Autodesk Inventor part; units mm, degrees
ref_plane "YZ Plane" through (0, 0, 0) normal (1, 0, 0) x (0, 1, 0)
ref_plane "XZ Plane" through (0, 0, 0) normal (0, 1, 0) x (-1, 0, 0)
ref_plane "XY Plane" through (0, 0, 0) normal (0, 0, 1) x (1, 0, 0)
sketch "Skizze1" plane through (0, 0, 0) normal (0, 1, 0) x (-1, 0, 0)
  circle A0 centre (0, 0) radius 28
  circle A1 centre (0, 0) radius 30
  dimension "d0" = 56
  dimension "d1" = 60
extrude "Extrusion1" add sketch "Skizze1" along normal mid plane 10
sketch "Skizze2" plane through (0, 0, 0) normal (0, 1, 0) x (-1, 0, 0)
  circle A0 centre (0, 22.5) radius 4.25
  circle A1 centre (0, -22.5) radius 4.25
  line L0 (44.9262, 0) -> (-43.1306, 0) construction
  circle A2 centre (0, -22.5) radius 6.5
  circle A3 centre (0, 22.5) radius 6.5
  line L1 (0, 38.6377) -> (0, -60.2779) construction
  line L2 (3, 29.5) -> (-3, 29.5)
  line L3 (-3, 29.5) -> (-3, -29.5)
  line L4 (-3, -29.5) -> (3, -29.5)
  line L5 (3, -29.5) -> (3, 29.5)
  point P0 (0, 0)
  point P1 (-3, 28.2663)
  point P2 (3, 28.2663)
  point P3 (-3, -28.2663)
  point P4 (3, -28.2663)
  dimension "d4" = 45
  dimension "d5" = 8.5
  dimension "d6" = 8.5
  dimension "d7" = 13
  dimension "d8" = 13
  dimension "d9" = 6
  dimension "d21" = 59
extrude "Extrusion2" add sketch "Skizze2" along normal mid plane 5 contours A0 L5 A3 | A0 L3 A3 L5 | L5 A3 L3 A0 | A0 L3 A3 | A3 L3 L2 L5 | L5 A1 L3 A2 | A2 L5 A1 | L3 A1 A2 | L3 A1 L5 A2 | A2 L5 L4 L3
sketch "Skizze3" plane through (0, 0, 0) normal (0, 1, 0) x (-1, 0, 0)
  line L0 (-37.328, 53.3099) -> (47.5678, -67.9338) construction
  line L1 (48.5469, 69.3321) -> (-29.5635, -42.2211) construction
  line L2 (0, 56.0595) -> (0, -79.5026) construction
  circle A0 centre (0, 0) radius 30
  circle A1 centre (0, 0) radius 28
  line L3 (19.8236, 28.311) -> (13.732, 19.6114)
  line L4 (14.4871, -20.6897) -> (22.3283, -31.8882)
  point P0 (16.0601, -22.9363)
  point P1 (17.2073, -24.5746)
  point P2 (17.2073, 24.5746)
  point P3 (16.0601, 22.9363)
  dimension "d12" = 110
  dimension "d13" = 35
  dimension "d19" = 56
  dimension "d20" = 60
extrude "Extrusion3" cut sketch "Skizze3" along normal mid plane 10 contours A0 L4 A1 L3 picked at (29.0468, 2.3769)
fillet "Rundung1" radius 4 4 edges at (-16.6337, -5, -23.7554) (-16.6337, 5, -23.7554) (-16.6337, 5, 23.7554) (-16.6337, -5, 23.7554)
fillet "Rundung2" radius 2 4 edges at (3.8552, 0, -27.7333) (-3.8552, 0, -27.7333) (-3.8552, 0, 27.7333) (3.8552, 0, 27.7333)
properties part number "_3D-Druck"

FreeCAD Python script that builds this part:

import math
import FreeCAD as App
import Part
import Sketcher
Q = App.Units.Quantity


def edges_at(feature, points):
    """Names of the edges that pass closest to the given points."""
    edges = feature.Shape.Edges
    near = lambda p: min(range(len(edges)), key=lambda i: edges[i].distToShape(Part.Vertex(*p))[0])
    return sorted({f"Edge{near(p) + 1}" for p in points})

doc = App.newDocument("Part")
body = doc.addObject("PartDesign::Body", "Body")

# Sketch on XZ plane
sketch1 = doc.addObject("Sketcher::SketchObject", "Sketch")
body.addObject(sketch1)
sketch1.AttachmentSupport = (doc.XZ_Plane, [""])
sketch1.MapMode = "FlatFace"
sketch1.addGeometry([
    Part.Circle(App.Vector(0, 0, 0), App.Vector(0, 0, 1), 30),
    Part.Circle(App.Vector(0, 0, 0), App.Vector(0, 0, 1), 28),
], False)
sketch1.addConstraint([
    Sketcher.Constraint("Coincident", 0, 3, -1, 1),
    Sketcher.Constraint("Coincident", 1, 3, -1, 1),
    Sketcher.Constraint("Diameter", 0, 60.0),
    Sketcher.Constraint("Diameter", 1, 56.0),
])
pad1 = doc.addObject("PartDesign::Pad", "Pad")
body.addObject(pad1)
pad1.Profile = sketch1
pad1.Length = 10
pad1.Midplane = True

# Sketch on XZ plane
sketch2 = doc.addObject("Sketcher::SketchObject", "Sketch001")
body.addObject(sketch2)
sketch2.AttachmentSupport = (doc.XZ_Plane, [""])
sketch2.MapMode = "FlatFace"
sketch2.addGeometry([
    Part.LineSegment(App.Vector(-3, 28.3, 0), App.Vector(-3, 29.5, 0)),  # 0
    Part.LineSegment(App.Vector(-3, 29.5, 0), App.Vector(3, 29.5, 0)),  # 1
    Part.LineSegment(App.Vector(3, 29.5, 0), App.Vector(3, 28.3, 0)),  # 2
    Part.ArcOfCircle(Part.Circle(App.Vector(0, 22.5, 0), App.Vector(0, 0, 1), 6.5), math.radians(117), math.radians(423)),  # 3
    Part.Circle(App.Vector(0, 22.5, 0), App.Vector(0, 0, 1), 4.2),  # 4
    Part.LineSegment(App.Vector(3, -28.3, 0), App.Vector(3, -29.5, 0)),  # 5
    Part.LineSegment(App.Vector(3, -29.5, 0), App.Vector(-3, -29.5, 0)),  # 6
    Part.LineSegment(App.Vector(-3, -29.5, 0), App.Vector(-3, -28.3, 0)),  # 7
    Part.ArcOfCircle(Part.Circle(App.Vector(0, -22.5, 0), App.Vector(0, 0, 1), 6.5), math.radians(-63), math.radians(243)),  # 8
    Part.Circle(App.Vector(0, -22.5, 0), App.Vector(0, 0, 1), 4.2),  # 9
], False)
sketch2.addConstraint([
    Sketcher.Constraint("Coincident", 0, 2, 1, 1),
    Sketcher.Constraint("Coincident", 1, 2, 2, 1),
    Sketcher.Constraint("Coincident", 2, 2, 3, 2),
    Sketcher.Constraint("Coincident", 3, 1, 0, 1),
    Sketcher.Constraint("Coincident", 5, 2, 6, 1),
    Sketcher.Constraint("Coincident", 6, 2, 7, 1),
    Sketcher.Constraint("Coincident", 7, 2, 8, 2),
    Sketcher.Constraint("Coincident", 8, 1, 5, 1),
    Sketcher.Constraint("Vertical", 0),
    Sketcher.Constraint("Horizontal", 1),
    Sketcher.Constraint("Vertical", 2),
    Sketcher.Constraint("Vertical", 5),
    Sketcher.Constraint("Horizontal", 6),
    Sketcher.Constraint("Vertical", 7),
    Sketcher.Constraint("Coincident", 4, 3, 3, 3),
    Sketcher.Constraint("Coincident", 9, 3, 8, 3),
    Sketcher.Constraint("Equal", 3, 8),
    Sketcher.Constraint("Equal", 4, 9),
    Sketcher.Constraint("Symmetric", 3, 3, 8, 3, -1, 1),
    Sketcher.Constraint("Symmetric", 0, 2, 5, 2, -1, 1),
    Sketcher.Constraint("Symmetric", 2, 2, 3, 1, -2),
    Sketcher.Constraint("Horizontal", 7, 2, 8, 1),
    Sketcher.Constraint("Diameter", 4, 8.5),
    Sketcher.Constraint("Radius", 3, 6.5),
    Sketcher.Constraint("DistanceX", 1, 1, 1, 2, 6.0),
    Sketcher.Constraint("DistanceY", 8, 3, 3, 3, 45.0),
    Sketcher.Constraint("DistanceY", 3, 3, 0, 2, 7.0),
])
pad2 = doc.addObject("PartDesign::Pad", "Pad001")
body.addObject(pad2)
pad2.Profile = sketch2
pad2.Length = 5
pad2.Midplane = True

# Sketch on XZ plane
sketch3 = doc.addObject("Sketcher::SketchObject", "Sketch002")
body.addObject(sketch3)
sketch3.AttachmentSupport = (doc.XZ_Plane, [""])
sketch3.MapMode = "FlatFace"
sketch3.addGeometry([
    Part.ArcOfCircle(Part.Circle(App.Vector(0, 0, 0), App.Vector(0, 0, 1), 30), math.radians(125), math.radians(235)),
    Part.LineSegment(App.Vector(-17.2, 24.6, 0), App.Vector(-16.1, 22.9, 0)),
    Part.ArcOfCircle(Part.Circle(App.Vector(0, 0, 0), App.Vector(0, 0, 1), 28), math.radians(125), math.radians(235)),
    Part.LineSegment(App.Vector(-16.1, -22.9, 0), App.Vector(-17.2, -24.6, 0)),
], False)
sketch3.addConstraint([
    Sketcher.Constraint("Coincident", 0, 1, 1, 1),
    Sketcher.Constraint("Coincident", 1, 2, 2, 1),
    Sketcher.Constraint("Coincident", 2, 2, 3, 1),
    Sketcher.Constraint("Coincident", 3, 2, 0, 2),
    Sketcher.Constraint("Coincident", 0, 3, -1, 1),
    Sketcher.Constraint("Coincident", 2, 3, -1, 1),
    Sketcher.Constraint("Vertical", 1, 2, 2, 2),
    Sketcher.Constraint("Vertical", 0, 1, 3, 2),
    Sketcher.Constraint("Radius", 0, 30.0),
    Sketcher.Constraint("Radius", 2, 28.0),
    Sketcher.Constraint("Angle", 1, Q("-54.9997 deg")),
    Sketcher.Constraint("DistanceX", 0, 1, -1, 1, 17.2073),
])
pocket1 = doc.addObject("PartDesign::Pocket", "Pocket")
body.addObject(pocket1)
pocket1.Profile = sketch3
pocket1.Length = 10
pocket1.Midplane = True
doc.recompute()

fillet = doc.addObject("PartDesign::Fillet", "Fillet")
body.addObject(fillet)
fillet.Base = (pocket1, edges_at(pocket1, [
    (-16.634, -5, -23.755),
    (-16.634, 5, -23.755),
    (-16.634, 5, 23.755),
    (-16.634, -5, 23.755),
]))
fillet.Radius = 4
doc.recompute()

fillet2 = doc.addObject("PartDesign::Fillet", "Fillet001")
body.addObject(fillet2)
fillet2.Base = (fillet, edges_at(fillet, [
    (3.855, 0, -27.733),
    (-3.855, 0, -27.733),
    (-3.855, 0, 27.733),
    (3.855, 0, 27.733),
]))
fillet2.Radius = 2

doc.recompute()
